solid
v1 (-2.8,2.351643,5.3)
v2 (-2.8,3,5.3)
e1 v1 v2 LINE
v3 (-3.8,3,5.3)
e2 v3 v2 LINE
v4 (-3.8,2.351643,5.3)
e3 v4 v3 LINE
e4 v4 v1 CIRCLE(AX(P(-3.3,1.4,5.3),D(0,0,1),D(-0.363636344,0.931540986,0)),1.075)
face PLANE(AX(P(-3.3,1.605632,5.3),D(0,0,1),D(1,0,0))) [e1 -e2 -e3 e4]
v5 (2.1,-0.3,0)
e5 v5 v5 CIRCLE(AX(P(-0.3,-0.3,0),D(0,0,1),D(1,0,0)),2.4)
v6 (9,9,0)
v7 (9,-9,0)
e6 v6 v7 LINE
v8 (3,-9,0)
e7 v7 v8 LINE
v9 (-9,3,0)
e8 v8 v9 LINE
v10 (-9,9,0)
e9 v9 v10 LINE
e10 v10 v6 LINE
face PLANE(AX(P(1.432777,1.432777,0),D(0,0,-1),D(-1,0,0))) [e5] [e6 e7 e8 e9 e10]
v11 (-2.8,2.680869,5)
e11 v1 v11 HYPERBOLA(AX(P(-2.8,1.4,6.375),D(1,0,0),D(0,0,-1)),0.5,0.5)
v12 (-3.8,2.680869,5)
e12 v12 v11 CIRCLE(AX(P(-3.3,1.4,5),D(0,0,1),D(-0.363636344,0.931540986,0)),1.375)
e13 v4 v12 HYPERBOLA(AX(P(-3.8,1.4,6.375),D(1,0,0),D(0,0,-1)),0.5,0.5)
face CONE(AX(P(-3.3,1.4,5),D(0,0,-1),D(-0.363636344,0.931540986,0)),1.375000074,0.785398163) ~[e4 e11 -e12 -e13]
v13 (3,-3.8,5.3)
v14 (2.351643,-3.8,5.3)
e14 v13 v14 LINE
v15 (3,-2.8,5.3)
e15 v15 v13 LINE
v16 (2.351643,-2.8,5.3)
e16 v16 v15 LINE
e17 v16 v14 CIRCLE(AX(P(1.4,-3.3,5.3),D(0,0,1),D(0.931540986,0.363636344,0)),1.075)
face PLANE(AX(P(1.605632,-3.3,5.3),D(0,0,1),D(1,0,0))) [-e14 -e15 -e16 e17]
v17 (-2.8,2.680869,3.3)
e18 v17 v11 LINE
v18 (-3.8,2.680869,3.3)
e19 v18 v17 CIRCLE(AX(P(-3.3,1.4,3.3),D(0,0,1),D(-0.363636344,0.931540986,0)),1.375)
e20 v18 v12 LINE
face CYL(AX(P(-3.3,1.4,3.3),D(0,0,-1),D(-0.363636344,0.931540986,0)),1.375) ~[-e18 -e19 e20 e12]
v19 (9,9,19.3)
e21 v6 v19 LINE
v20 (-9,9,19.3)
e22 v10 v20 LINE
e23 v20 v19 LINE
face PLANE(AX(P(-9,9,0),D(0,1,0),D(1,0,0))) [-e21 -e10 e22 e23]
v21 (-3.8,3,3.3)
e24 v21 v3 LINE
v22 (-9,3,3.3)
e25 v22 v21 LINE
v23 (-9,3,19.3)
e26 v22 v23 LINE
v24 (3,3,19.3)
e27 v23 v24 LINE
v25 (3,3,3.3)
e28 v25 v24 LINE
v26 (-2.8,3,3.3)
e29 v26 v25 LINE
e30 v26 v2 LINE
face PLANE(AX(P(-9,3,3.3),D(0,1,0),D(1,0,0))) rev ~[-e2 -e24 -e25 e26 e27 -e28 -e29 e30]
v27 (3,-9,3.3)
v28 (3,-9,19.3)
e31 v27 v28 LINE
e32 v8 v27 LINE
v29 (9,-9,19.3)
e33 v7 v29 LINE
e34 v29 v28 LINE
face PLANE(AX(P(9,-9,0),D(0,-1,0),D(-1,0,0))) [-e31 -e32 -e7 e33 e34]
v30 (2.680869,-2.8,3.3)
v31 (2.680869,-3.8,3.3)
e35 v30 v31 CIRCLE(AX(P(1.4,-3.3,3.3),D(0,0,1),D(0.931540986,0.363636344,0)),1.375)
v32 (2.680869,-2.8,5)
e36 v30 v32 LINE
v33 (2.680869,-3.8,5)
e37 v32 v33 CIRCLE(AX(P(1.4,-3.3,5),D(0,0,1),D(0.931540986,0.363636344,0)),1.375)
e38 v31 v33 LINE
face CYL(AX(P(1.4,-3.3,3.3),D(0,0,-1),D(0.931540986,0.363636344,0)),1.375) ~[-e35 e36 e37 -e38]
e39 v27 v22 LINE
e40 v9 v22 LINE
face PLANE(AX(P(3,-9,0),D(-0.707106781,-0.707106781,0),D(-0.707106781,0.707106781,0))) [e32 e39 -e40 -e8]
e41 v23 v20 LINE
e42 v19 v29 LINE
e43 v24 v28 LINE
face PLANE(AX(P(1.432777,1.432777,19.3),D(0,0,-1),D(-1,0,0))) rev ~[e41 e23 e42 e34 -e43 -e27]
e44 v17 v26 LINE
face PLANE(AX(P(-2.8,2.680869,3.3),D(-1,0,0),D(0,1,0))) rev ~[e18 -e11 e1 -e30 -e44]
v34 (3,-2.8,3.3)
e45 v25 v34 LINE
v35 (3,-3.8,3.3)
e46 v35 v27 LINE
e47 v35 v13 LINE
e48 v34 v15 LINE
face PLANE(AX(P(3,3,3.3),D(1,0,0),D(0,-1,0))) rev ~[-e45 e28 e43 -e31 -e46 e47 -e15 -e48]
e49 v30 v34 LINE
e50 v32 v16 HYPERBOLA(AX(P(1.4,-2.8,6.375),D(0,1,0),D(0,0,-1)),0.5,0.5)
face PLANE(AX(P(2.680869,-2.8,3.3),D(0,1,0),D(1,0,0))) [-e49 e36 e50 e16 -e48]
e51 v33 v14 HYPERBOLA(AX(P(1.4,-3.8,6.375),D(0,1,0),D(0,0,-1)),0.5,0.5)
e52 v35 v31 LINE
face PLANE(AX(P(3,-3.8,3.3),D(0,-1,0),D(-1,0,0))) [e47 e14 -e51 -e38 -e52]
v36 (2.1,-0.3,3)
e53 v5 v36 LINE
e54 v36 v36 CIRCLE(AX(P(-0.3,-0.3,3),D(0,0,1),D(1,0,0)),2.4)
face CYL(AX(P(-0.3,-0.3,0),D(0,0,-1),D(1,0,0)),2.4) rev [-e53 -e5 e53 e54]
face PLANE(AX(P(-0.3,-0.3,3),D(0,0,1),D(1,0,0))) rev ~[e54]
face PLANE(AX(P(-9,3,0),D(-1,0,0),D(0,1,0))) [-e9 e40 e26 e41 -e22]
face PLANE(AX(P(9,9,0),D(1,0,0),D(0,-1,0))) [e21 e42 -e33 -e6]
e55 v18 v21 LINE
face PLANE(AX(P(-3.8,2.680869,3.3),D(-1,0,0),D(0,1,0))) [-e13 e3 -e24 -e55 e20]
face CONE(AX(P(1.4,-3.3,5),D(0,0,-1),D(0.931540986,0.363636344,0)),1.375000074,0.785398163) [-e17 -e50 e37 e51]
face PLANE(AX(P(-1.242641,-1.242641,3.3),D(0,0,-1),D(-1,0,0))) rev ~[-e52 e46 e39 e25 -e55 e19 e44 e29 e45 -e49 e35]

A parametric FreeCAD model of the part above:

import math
import FreeCAD as App
import Part
import Sketcher
Q = App.Units.Quantity


def edges_at(feature, points):
    """Names of the edges that pass closest to the given points."""
    edges = feature.Shape.Edges
    near = lambda p: min(range(len(edges)), key=lambda i: edges[i].distToShape(Part.Vertex(*p))[0])
    return sorted({f"Edge{near(p) + 1}" for p in points})

doc = App.newDocument("Part")
body = doc.addObject("PartDesign::Body", "Body")

# Sketch on XY plane
sketch1 = doc.addObject("Sketcher::SketchObject", "Sketch")
body.addObject(sketch1)
sketch1.AttachmentSupport = (doc.XY_Plane, [""])
sketch1.MapMode = "FlatFace"
sketch1.addGeometry([
    Part.LineSegment(App.Vector(-9, 9, 0), App.Vector(-9, 3, 0)),  # 0
    Part.LineSegment(App.Vector(-9, 3, 0), App.Vector(3, -9, 0)),  # 1
    Part.LineSegment(App.Vector(3, -9, 0), App.Vector(9, -9, 0)),  # 2
    Part.LineSegment(App.Vector(9, -9, 0), App.Vector(9, 9, 0)),  # 3
    Part.LineSegment(App.Vector(9, 9, 0), App.Vector(-9, 9, 0)),  # 4
], False)
sketch1.addConstraint([
    Sketcher.Constraint("Coincident", 0, 2, 1, 1),
    Sketcher.Constraint("Coincident", 1, 2, 2, 1),
    Sketcher.Constraint("Coincident", 2, 2, 3, 1),
    Sketcher.Constraint("Coincident", 3, 2, 4, 1),
    Sketcher.Constraint("Coincident", 4, 2, 0, 1),
    Sketcher.Constraint("Vertical", 0),
    Sketcher.Constraint("Horizontal", 2),
    Sketcher.Constraint("Vertical", 3),
    Sketcher.Constraint("Horizontal", 4),
    Sketcher.Constraint("Symmetric", 2, 2, 4, 2, -1, 1),
    Sketcher.Constraint("Equal", 2, 0),
    Sketcher.Constraint("Equal", 4, 3),
    Sketcher.Constraint("DistanceX", 2, 1, 2, 2, Q("6 mm")),
    Sketcher.Constraint("DistanceX", 4, 2, 4, 1, Q("18 mm")),
])
pad1 = doc.addObject("PartDesign::Pad", "Pad")
body.addObject(pad1)
pad1.Profile = sketch1
pad1.Length = 19.3

# Sketch on XY plane
sketch2 = doc.addObject("Sketcher::SketchObject", "Sketch001")
body.addObject(sketch2)
sketch2.AttachmentSupport = (doc.XY_Plane, [""])
sketch2.MapMode = "FlatFace"
sketch2.AttachmentOffset = App.Placement(App.Vector(0, 0, 3.3), App.Rotation())
sketch2.addGeometry([
    Part.LineSegment(App.Vector(3, 3, 0), App.Vector(-9, 3, 0)),
    Part.LineSegment(App.Vector(-9, 3, 0), App.Vector(3, -9, 0)),
    Part.LineSegment(App.Vector(3, -9, 0), App.Vector(3, 3, 0)),
], False)
sketch2.addConstraint([
    Sketcher.Constraint("Coincident", 0, 2, 1, 1),
    Sketcher.Constraint("Coincident", 1, 2, 2, 1),
    Sketcher.Constraint("Coincident", 2, 2, 0, 1),
    Sketcher.Constraint("Horizontal", 0),
    Sketcher.Constraint("Vertical", 2),
    Sketcher.Constraint("Equal", 0, 2),
    Sketcher.Constraint("DistanceX", 0, 2, 0, 1, Q("12 mm")),
    Sketcher.Constraint("DistanceX", 0, 2, -1, 1, Q("9 mm")),
    Sketcher.Constraint("DistanceY", -1, 1, 0, 2, Q("3 mm")),
])
pocket1 = doc.addObject("PartDesign::Pocket", "Pocket")
body.addObject(pocket1)
pocket1.Profile = sketch2
pocket1.Type = "ThroughAll"
pocket1.Reversed = True

# Sketch on XY plane
sketch3 = doc.addObject("Sketcher::SketchObject", "Sketch002")
body.addObject(sketch3)
sketch3.AttachmentSupport = (doc.XY_Plane, [""])
sketch3.MapMode = "FlatFace"
sketch3.AttachmentOffset = App.Placement(App.Vector(0, 0, 3.3), App.Rotation())
sketch3.addGeometry([
    Part.ArcOfCircle(Part.Circle(App.Vector(-3.3, 1.4, 0), App.Vector(0, 0, 1), 1.38), math.radians(111), math.radians(429)),  # 0
    Part.LineSegment(App.Vector(-2.8, 2.68, 0), App.Vector(-2.8, 3, 0)),  # 1
    Part.LineSegment(App.Vector(-2.8, 3, 0), App.Vector(-3.8, 3, 0)),  # 2
    Part.LineSegment(App.Vector(-3.8, 3, 0), App.Vector(-3.8, 2.68, 0)),  # 3
    Part.ArcOfCircle(Part.Circle(App.Vector(1.4, -3.3, 0), App.Vector(0, 0, 1), 1.38), math.radians(21), math.radians(339)),  # 4
    Part.LineSegment(App.Vector(2.68, -3.8, 0), App.Vector(3, -3.8, 0)),  # 5
    Part.LineSegment(App.Vector(3, -3.8, 0), App.Vector(3, -2.8, 0)),  # 6
    Part.LineSegment(App.Vector(3, -2.8, 0), App.Vector(2.68, -2.8, 0)),  # 7
], False)
sketch3.addConstraint([
    Sketcher.Constraint("Coincident", 0, 2, 1, 1),
    Sketcher.Constraint("Coincident", 1, 2, 2, 1),
    Sketcher.Constraint("Coincident", 2, 2, 3, 1),
    Sketcher.Constraint("Coincident", 3, 2, 0, 1),
    Sketcher.Constraint("Coincident", 4, 2, 5, 1),
    Sketcher.Constraint("Coincident", 5, 2, 6, 1),
    Sketcher.Constraint("Coincident", 6, 2, 7, 1),
    Sketcher.Constraint("Coincident", 7, 2, 4, 1),
    Sketcher.Constraint("Vertical", 1),
    Sketcher.Constraint("Horizontal", 2),
    Sketcher.Constraint("Vertical", 3),
    Sketcher.Constraint("Horizontal", 5),
    Sketcher.Constraint("Vertical", 6),
    Sketcher.Constraint("Horizontal", 7),
    Sketcher.Constraint("Equal", 0, 4),
    Sketcher.Constraint("Horizontal", 0, 2, 3, 2),
    Sketcher.Constraint("Vertical", 4, 2, 7, 2),
    Sketcher.Constraint("Equal", 7, 1),
    Sketcher.Constraint("Equal", 2, 6),
    Sketcher.Constraint("DistanceX", 2, 2, 2, 1, Q("1 mm")),
    Sketcher.Constraint("DistanceY", -1, 1, 1, 2, Q("3 mm")),
    Sketcher.Constraint("DistanceX", -1, 1, 5, 2, Q("3 mm")),
    Sketcher.Constraint("Radius", 0, Q("1.375 mm")),
    Sketcher.Constraint("DistanceX", 0, 3, -1, 1, Q("3.3 mm")),
    Sketcher.Constraint("DistanceY", -1, 1, 0, 3, Q("1.4 mm")),
    Sketcher.Constraint("DistanceY", 4, 3, -1, 1, Q("3.3 mm")),
])
pad2 = doc.addObject("PartDesign::Pad", "Pad001")
body.addObject(pad2)
pad2.Profile = sketch3
pad2.Length = 2

# Sketch on XY plane
sketch4 = doc.addObject("Sketcher::SketchObject", "Sketch003")
body.addObject(sketch4)
sketch4.AttachmentSupport = (doc.XY_Plane, [""])
sketch4.MapMode = "FlatFace"
sketch4.addGeometry(Part.Circle(App.Vector(-0.3, -0.3, 0), App.Vector(0, 0, 1), 2.4), False)
sketch4.addConstraint([
    Sketcher.Constraint("Diameter", 0, Q("4.8 mm")),
    Sketcher.Constraint("DistanceX", 0, 3, -1, 1, Q("0.3 mm")),
    Sketcher.Constraint("DistanceY", 0, 3, -1, 1, Q("0.3 mm")),
])
pocket2 = doc.addObject("PartDesign::Pocket", "Pocket001")
body.addObject(pocket2)
pocket2.Profile = sketch4
pocket2.Length = 3
pocket2.Reversed = True
doc.recompute()

chamfer = doc.addObject("PartDesign::Chamfer", "Chamfer")
body.addObject(chamfer)
chamfer.Base = (pocket2, edges_at(pocket2, [(-3.3, 0.025, 5.3), (0.025, -3.3, 5.3)]))
chamfer.Size = 0.3

doc.recompute()
